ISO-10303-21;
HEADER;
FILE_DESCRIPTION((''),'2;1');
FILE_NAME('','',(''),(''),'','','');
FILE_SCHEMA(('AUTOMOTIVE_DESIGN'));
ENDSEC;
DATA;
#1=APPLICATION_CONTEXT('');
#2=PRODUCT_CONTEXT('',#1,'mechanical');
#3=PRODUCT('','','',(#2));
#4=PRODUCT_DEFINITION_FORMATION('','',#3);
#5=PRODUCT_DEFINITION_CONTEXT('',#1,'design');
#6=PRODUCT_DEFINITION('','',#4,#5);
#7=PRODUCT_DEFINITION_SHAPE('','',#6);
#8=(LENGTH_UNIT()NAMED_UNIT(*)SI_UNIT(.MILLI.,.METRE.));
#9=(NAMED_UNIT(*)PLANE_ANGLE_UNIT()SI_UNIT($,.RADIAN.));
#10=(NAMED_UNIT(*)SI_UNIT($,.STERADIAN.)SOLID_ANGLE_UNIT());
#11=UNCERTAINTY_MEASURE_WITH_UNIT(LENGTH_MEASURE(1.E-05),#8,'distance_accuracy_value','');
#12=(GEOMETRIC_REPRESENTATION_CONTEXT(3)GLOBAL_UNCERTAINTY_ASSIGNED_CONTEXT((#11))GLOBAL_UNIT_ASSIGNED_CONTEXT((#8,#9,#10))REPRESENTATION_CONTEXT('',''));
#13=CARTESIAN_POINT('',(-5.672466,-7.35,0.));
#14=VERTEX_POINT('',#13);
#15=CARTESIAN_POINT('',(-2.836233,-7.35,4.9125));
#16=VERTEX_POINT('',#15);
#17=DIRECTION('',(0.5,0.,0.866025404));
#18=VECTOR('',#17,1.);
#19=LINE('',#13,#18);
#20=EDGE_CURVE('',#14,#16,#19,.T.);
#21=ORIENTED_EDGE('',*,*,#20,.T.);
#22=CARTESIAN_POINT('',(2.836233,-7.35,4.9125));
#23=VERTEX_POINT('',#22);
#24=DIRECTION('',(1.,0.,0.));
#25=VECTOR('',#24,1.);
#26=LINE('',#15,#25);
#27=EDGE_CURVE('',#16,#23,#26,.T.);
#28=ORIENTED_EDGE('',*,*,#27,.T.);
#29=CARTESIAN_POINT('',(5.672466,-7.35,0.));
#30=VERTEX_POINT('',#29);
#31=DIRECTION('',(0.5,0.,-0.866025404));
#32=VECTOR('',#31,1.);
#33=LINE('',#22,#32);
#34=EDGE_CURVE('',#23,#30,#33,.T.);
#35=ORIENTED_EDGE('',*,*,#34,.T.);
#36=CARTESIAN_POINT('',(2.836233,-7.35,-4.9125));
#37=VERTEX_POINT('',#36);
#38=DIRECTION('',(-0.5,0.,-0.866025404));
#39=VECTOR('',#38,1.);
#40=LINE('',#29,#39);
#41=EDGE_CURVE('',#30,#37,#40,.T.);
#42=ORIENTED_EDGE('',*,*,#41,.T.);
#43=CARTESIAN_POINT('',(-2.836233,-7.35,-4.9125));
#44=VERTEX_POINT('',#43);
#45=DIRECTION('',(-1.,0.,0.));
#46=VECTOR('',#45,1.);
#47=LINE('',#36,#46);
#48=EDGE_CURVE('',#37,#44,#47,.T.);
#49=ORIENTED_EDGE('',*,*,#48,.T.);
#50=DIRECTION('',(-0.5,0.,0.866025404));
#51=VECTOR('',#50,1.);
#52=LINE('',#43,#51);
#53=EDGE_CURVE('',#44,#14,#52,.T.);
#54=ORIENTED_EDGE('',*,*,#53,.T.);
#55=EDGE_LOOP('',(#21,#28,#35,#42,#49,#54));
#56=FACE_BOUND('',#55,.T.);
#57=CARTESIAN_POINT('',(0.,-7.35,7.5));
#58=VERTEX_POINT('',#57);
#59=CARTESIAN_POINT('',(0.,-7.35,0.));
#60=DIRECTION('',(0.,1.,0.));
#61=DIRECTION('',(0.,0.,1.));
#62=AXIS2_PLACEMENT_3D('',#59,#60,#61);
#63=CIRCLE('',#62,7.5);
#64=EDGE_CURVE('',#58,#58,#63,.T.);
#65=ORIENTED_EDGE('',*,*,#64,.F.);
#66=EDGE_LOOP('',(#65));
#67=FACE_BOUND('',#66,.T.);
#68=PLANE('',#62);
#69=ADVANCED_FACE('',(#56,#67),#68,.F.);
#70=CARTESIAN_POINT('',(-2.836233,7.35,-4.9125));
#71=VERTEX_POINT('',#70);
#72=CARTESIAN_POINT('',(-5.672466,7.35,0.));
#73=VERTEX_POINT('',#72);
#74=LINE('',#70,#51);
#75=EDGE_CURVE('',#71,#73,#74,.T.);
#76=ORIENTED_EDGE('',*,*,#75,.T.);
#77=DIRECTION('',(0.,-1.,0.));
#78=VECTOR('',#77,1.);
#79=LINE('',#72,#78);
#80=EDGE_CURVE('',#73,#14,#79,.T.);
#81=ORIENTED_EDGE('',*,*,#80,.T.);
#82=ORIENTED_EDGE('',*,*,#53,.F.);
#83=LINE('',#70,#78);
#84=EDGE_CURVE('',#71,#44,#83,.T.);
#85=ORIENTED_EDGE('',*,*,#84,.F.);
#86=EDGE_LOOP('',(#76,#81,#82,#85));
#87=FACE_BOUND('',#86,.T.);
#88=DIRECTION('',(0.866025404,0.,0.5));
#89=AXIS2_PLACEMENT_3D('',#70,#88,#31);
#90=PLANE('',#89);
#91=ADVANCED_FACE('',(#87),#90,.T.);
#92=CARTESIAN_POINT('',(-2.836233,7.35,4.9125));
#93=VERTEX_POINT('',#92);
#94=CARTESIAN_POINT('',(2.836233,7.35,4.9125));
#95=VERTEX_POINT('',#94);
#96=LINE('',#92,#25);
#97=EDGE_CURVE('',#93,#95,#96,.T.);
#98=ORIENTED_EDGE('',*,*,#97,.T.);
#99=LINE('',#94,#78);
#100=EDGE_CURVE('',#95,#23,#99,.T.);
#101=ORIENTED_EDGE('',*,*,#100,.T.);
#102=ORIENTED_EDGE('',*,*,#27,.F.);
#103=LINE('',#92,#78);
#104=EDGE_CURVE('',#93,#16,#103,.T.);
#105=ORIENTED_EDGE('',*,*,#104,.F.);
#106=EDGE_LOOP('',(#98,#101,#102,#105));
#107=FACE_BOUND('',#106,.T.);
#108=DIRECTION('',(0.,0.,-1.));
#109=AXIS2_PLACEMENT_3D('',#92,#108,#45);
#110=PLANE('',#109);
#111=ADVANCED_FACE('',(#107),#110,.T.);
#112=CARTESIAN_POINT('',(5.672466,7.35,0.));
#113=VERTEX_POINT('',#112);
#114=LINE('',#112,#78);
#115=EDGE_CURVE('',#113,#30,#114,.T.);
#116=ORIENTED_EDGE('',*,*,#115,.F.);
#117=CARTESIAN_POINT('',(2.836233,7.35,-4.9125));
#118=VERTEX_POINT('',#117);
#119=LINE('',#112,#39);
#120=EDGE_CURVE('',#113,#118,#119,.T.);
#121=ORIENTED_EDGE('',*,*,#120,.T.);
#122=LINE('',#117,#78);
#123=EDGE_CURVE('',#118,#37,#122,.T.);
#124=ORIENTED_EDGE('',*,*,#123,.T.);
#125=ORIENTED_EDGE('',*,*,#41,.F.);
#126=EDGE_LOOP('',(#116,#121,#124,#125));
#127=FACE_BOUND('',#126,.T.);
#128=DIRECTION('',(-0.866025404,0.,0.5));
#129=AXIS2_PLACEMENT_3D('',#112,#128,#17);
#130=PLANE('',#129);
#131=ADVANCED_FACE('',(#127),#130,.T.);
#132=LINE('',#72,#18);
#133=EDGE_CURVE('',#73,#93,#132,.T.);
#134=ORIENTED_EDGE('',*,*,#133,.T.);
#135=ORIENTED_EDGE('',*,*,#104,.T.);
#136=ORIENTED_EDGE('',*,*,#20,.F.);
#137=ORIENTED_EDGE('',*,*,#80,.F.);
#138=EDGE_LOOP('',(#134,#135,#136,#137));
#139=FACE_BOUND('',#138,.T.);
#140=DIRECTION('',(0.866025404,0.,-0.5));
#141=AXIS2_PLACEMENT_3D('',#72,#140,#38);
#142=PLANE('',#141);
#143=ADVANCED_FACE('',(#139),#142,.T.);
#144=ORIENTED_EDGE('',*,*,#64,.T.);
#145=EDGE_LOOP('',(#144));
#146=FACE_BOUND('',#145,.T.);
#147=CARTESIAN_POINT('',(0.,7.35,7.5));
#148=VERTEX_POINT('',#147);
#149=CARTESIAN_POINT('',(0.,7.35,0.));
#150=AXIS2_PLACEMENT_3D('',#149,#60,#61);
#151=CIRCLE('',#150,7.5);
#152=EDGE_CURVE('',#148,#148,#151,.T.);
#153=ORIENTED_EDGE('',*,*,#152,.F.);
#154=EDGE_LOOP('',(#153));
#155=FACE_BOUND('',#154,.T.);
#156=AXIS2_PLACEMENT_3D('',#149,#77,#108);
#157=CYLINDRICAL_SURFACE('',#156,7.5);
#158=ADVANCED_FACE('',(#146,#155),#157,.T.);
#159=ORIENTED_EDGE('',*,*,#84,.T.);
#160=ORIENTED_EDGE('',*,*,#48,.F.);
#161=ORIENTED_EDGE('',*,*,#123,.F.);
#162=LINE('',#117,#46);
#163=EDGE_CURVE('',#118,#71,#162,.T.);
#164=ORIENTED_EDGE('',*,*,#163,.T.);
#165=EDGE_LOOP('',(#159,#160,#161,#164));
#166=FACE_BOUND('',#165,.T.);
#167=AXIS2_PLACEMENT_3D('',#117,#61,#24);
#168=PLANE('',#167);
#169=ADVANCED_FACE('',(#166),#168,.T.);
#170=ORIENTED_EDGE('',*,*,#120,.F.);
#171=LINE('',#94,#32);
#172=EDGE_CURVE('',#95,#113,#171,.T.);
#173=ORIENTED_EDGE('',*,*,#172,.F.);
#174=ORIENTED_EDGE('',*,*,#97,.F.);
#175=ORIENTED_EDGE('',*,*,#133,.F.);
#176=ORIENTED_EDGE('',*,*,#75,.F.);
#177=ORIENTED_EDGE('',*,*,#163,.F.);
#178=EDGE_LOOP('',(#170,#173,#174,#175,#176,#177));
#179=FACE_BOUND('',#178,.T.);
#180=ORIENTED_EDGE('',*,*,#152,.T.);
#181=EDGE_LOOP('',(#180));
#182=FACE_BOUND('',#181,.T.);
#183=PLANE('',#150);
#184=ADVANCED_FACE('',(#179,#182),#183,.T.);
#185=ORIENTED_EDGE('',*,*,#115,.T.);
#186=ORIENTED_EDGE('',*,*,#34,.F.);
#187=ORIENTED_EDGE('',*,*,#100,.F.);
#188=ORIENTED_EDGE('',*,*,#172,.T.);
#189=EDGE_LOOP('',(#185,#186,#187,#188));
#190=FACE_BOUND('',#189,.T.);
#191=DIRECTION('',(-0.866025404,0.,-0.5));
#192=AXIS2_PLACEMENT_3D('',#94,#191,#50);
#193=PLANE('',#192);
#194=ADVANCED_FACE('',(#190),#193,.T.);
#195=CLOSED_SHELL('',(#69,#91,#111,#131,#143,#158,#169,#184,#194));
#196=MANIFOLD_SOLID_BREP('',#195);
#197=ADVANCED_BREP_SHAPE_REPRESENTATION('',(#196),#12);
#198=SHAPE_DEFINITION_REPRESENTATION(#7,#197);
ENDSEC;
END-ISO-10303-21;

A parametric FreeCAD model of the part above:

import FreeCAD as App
import Part
import Sketcher
from FreeCAD import Vector
Q = App.Units.Quantity


def add_polygon(sketch, points):
    """Adds a closed chain of lines whose ends are joined by coincident constraints."""
    first, n = sketch.GeometryCount, len(points)
    for a, b in zip(points, points[1:] + points[:1]):
        sketch.addGeometry(Part.LineSegment(App.Vector(*a, 0), App.Vector(*b, 0)), False)
    for i in range(n):
        sketch.addConstraint(Sketcher.Constraint("Coincident", first + i, 2, first + (i + 1) % n, 1))

doc = App.newDocument("Part")
body = doc.addObject("PartDesign::Body", "Body")

sketch1 = doc.addObject("Sketcher::SketchObject", "Sketch")
body.addObject(sketch1)
sketch1.AttachmentSupport = (doc.XZ_Plane, [""])
sketch1.MapMode = "FlatFace"
sketch1.addGeometry(Part.Circle(Vector(0, 0, 0), Vector(0, 0, 1), 7.5), False)
add_polygon(sketch1, [(2.836233, 4.9125), (-2.836233, 4.9125), (-5.672466, 0), (-2.836233, -4.9125), (2.836233, -4.9125), (5.672466, 0)])
sketch1.addConstraint([
    Sketcher.Constraint("Horizontal", 1),
    Sketcher.Constraint("Horizontal", 4),
    Sketcher.Constraint("Coincident", 0, 3, -1, 1),
    Sketcher.Constraint("Symmetric", 1, 2, 4, 2, -1, 1),
    Sketcher.Constraint("Symmetric", 2, 2, 5, 2, -1, 1),
    Sketcher.Constraint("PointOnObject", 2, 2, -1),
    Sketcher.Constraint("Parallel", 3, 6),
    Sketcher.Constraint("Vertical", 1, 2, 3, 2),
    Sketcher.Constraint("Diameter", 0, 15.0),
    Sketcher.Constraint("Angle", 2, Q("-120 deg")),
    Sketcher.Constraint("DistanceY", 3, 2, 1, 2, 9.825),
    Sketcher.Constraint("DistanceX", 2, 2, 4, 2, 8.5087),
])
pad1 = doc.addObject("PartDesign::Pad", "Pad")
body.addObject(pad1)
pad1.Profile = sketch1
pad1.Length = 14.7
pad1.Midplane = True

doc.recompute()
